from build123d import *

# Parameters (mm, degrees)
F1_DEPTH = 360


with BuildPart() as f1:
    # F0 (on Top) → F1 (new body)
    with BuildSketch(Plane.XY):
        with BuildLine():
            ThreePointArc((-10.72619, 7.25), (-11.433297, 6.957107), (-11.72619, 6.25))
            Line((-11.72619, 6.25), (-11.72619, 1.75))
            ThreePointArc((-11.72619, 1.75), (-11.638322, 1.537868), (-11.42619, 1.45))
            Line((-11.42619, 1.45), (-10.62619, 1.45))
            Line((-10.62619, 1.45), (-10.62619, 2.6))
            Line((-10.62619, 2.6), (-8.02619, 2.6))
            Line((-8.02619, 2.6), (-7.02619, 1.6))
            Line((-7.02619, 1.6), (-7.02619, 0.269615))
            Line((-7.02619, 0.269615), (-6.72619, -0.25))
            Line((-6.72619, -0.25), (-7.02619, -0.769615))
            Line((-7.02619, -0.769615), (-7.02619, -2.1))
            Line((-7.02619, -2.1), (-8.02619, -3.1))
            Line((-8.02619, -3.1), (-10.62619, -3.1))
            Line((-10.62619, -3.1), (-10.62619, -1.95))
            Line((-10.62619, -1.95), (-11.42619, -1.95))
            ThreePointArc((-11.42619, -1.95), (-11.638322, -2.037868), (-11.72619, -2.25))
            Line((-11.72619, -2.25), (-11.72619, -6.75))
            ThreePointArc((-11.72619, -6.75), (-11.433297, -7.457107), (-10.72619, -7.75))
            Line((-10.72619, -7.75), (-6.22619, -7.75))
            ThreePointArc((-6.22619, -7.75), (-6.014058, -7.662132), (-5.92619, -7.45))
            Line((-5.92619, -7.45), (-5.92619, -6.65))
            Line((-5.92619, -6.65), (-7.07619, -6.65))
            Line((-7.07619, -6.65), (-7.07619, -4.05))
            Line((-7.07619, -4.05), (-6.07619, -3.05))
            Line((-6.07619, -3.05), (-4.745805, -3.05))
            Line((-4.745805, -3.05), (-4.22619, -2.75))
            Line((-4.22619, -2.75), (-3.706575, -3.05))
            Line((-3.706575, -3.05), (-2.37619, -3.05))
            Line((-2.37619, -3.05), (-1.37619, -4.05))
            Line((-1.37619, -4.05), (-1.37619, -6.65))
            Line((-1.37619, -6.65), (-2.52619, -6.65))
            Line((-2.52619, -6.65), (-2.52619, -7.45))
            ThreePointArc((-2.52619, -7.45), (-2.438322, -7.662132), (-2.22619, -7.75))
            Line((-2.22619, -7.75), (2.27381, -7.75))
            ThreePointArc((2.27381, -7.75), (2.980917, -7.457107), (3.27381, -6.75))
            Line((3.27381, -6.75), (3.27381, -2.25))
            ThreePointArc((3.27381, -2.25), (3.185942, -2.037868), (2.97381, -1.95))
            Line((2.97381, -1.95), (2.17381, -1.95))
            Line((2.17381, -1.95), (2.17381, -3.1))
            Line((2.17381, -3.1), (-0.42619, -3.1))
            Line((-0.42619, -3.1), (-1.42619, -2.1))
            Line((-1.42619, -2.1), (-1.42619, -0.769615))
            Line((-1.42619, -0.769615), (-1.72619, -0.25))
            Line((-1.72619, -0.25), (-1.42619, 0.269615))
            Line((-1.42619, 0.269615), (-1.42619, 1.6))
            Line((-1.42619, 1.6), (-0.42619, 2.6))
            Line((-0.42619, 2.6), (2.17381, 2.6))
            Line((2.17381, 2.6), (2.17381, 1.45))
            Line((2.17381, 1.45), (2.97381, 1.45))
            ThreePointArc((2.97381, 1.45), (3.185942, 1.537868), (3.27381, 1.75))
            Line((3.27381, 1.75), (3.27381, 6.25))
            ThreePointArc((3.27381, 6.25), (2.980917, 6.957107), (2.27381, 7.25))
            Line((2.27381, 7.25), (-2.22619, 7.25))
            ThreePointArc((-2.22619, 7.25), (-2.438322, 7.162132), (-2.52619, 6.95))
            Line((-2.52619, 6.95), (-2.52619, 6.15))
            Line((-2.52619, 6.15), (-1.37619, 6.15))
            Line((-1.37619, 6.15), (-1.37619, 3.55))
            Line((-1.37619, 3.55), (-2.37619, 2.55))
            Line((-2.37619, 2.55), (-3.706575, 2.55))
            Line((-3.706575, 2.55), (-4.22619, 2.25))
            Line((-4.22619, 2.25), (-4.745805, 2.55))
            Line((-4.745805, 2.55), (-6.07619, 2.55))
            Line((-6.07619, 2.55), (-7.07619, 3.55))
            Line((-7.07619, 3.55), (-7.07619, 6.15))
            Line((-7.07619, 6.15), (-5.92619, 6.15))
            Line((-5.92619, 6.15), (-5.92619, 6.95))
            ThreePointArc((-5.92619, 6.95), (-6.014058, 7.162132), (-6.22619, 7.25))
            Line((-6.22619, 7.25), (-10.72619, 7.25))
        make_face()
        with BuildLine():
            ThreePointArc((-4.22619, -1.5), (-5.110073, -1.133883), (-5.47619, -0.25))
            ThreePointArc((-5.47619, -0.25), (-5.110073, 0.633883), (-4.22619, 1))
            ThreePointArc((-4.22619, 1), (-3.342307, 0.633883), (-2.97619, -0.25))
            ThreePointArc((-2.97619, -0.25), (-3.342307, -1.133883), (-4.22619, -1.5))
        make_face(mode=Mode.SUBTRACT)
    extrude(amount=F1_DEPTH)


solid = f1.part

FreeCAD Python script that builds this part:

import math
import FreeCAD as App
import Part
import Sketcher
Q = App.Units.Quantity

doc = App.newDocument("Part")
body = doc.addObject("PartDesign::Body", "Body")

# Sketch on XY plane
sketch1 = body.newObject("Sketcher::SketchObject", "Sketch")
sketch1.AttachmentSupport = (doc.getObject("XY_Plane"), [""])
sketch1.MapMode = "FlatFace"
sketch1.addGeometry([
    Part.ArcOfCircle(Part.Circle(App.Vector(-10.73, 6.25, 0), App.Vector(0, 0, 1), 1), math.radians(90), math.radians(180)),  # 0
    Part.LineSegment(App.Vector(-11.73, 6.25, 0), App.Vector(-11.73, 1.75, 0)),  # 1
    Part.ArcOfCircle(Part.Circle(App.Vector(-11.43, 1.75, 0), App.Vector(0, 0, 1), 0.3), math.radians(-180), math.radians(-90)),  # 2
    Part.LineSegment(App.Vector(-11.43, 1.45, 0), App.Vector(-10.63, 1.45, 0)),  # 3
    Part.LineSegment(App.Vector(-10.63, 1.45, 0), App.Vector(-10.63, 2.6, 0)),  # 4
    Part.LineSegment(App.Vector(-10.63, 2.6, 0), App.Vector(-8.03, 2.6, 0)),  # 5
    Part.LineSegment(App.Vector(-8.03, 2.6, 0), App.Vector(-7.03, 1.6, 0)),  # 6
    Part.LineSegment(App.Vector(-7.03, 1.6, 0), App.Vector(-7.03, 0.27, 0)),  # 7
    Part.LineSegment(App.Vector(-7.03, 0.27, 0), App.Vector(-6.73, -0.25, 0)),  # 8
    Part.LineSegment(App.Vector(-6.73, -0.25, 0), App.Vector(-7.03, -0.77, 0)),  # 9
    Part.LineSegment(App.Vector(-7.03, -0.77, 0), App.Vector(-7.03, -2.1, 0)),  # 10
    Part.LineSegment(App.Vector(-7.03, -2.1, 0), App.Vector(-8.03, -3.1, 0)),  # 11
    Part.LineSegment(App.Vector(-8.03, -3.1, 0), App.Vector(-10.63, -3.1, 0)),  # 12
    Part.LineSegment(App.Vector(-10.63, -3.1, 0), App.Vector(-10.63, -1.95, 0)),  # 13
    Part.LineSegment(App.Vector(-10.63, -1.95, 0), App.Vector(-11.43, -1.95, 0)),  # 14
    Part.ArcOfCircle(Part.Circle(App.Vector(-11.43, -2.25, 0), App.Vector(0, 0, 1), 0.3), math.radians(90), math.radians(180)),  # 15
    Part.LineSegment(App.Vector(-11.73, -2.25, 0), App.Vector(-11.73, -6.75, 0)),  # 16
    Part.ArcOfCircle(Part.Circle(App.Vector(-10.73, -6.75, 0), App.Vector(0, 0, 1), 1), math.radians(180), math.radians(270)),  # 17
    Part.LineSegment(App.Vector(-10.73, -7.75, 0), App.Vector(-6.23, -7.75, 0)),  # 18
    Part.ArcOfCircle(Part.Circle(App.Vector(-6.23, -7.45, 0), App.Vector(0, 0, 1), 0.3), math.radians(-90), math.radians(0)),  # 19
    Part.LineSegment(App.Vector(-5.93, -7.45, 0), App.Vector(-5.93, -6.65, 0)),  # 20
    Part.LineSegment(App.Vector(-5.93, -6.65, 0), App.Vector(-7.08, -6.65, 0)),  # 21
    Part.LineSegment(App.Vector(-7.08, -6.65, 0), App.Vector(-7.08, -4.05, 0)),  # 22
    Part.LineSegment(App.Vector(-7.08, -4.05, 0), App.Vector(-6.08, -3.05, 0)),  # 23
    Part.LineSegment(App.Vector(-6.08, -3.05, 0), App.Vector(-4.75, -3.05, 0)),  # 24
    Part.LineSegment(App.Vector(-4.75, -3.05, 0), App.Vector(-4.23, -2.75, 0)),  # 25
    Part.LineSegment(App.Vector(-4.23, -2.75, 0), App.Vector(-3.71, -3.05, 0)),  # 26
    Part.LineSegment(App.Vector(-3.71, -3.05, 0), App.Vector(-2.38, -3.05, 0)),  # 27
    Part.LineSegment(App.Vector(-2.38, -3.05, 0), App.Vector(-1.38, -4.05, 0)),  # 28
    Part.LineSegment(App.Vector(-1.38, -4.05, 0), App.Vector(-1.38, -6.65, 0)),  # 29
    Part.LineSegment(App.Vector(-1.38, -6.65, 0), App.Vector(-2.53, -6.65, 0)),  # 30
    Part.LineSegment(App.Vector(-2.53, -6.65, 0), App.Vector(-2.53, -7.45, 0)),  # 31
    Part.ArcOfCircle(Part.Circle(App.Vector(-2.23, -7.45, 0), App.Vector(0, 0, 1), 0.3), math.radians(-180), math.radians(-90)),  # 32
    Part.LineSegment(App.Vector(-2.23, -7.75, 0), App.Vector(2.27, -7.75, 0)),  # 33
    Part.ArcOfCircle(Part.Circle(App.Vector(2.27, -6.75, 0), App.Vector(0, 0, 1), 1), math.radians(-90), math.radians(0)),  # 34
    Part.LineSegment(App.Vector(3.27, -6.75, 0), App.Vector(3.27, -2.25, 0)),  # 35
    Part.ArcOfCircle(Part.Circle(App.Vector(2.97, -2.25, 0), App.Vector(0, 0, 1), 0.3), math.radians(0), math.radians(90)),  # 36
    Part.LineSegment(App.Vector(2.97, -1.95, 0), App.Vector(2.17, -1.95, 0)),  # 37
    Part.LineSegment(App.Vector(2.17, -1.95, 0), App.Vector(2.17, -3.1, 0)),  # 38
    Part.LineSegment(App.Vector(2.17, -3.1, 0), App.Vector(-0.43, -3.1, 0)),  # 39
    Part.LineSegment(App.Vector(-0.43, -3.1, 0), App.Vector(-1.43, -2.1, 0)),  # 40
    Part.LineSegment(App.Vector(-1.43, -2.1, 0), App.Vector(-1.43, -0.77, 0)),  # 41
    Part.LineSegment(App.Vector(-1.43, -0.77, 0), App.Vector(-1.73, -0.25, 0)),  # 42
    Part.LineSegment(App.Vector(-1.73, -0.25, 0), App.Vector(-1.43, 0.27, 0)),  # 43
    Part.LineSegment(App.Vector(-1.43, 0.27, 0), App.Vector(-1.43, 1.6, 0)),  # 44
    Part.LineSegment(App.Vector(-1.43, 1.6, 0), App.Vector(-0.43, 2.6, 0)),  # 45
    Part.LineSegment(App.Vector(-0.43, 2.6, 0), App.Vector(2.17, 2.6, 0)),  # 46
    Part.LineSegment(App.Vector(2.17, 2.6, 0), App.Vector(2.17, 1.45, 0)),  # 47
    Part.LineSegment(App.Vector(2.17, 1.45, 0), App.Vector(2.97, 1.45, 0)),  # 48
    Part.ArcOfCircle(Part.Circle(App.Vector(2.97, 1.75, 0), App.Vector(0, 0, 1), 0.3), math.radians(-90), math.radians(0)),  # 49
    Part.LineSegment(App.Vector(3.27, 1.75, 0), App.Vector(3.27, 6.25, 0)),  # 50
    Part.ArcOfCircle(Part.Circle(App.Vector(2.27, 6.25, 0), App.Vector(0, 0, 1), 1), math.radians(0), math.radians(90)),  # 51
    Part.LineSegment(App.Vector(2.27, 7.25, 0), App.Vector(-2.23, 7.25, 0)),  # 52
    Part.ArcOfCircle(Part.Circle(App.Vector(-2.23, 6.95, 0), App.Vector(0, 0, 1), 0.3), math.radians(90), math.radians(180)),  # 53
    Part.LineSegment(App.Vector(-2.53, 6.95, 0), App.Vector(-2.53, 6.15, 0)),  # 54
    Part.LineSegment(App.Vector(-2.53, 6.15, 0), App.Vector(-1.38, 6.15, 0)),  # 55
    Part.LineSegment(App.Vector(-1.38, 6.15, 0), App.Vector(-1.38, 3.55, 0)),  # 56
    Part.LineSegment(App.Vector(-1.38, 3.55, 0), App.Vector(-2.38, 2.55, 0)),  # 57
    Part.LineSegment(App.Vector(-2.38, 2.55, 0), App.Vector(-3.71, 2.55, 0)),  # 58
    Part.LineSegment(App.Vector(-3.71, 2.55, 0), App.Vector(-4.23, 2.25, 0)),  # 59
    Part.LineSegment(App.Vector(-4.23, 2.25, 0), App.Vector(-4.75, 2.55, 0)),  # 60
    Part.LineSegment(App.Vector(-4.75, 2.55, 0), App.Vector(-6.08, 2.55, 0)),  # 61
    Part.LineSegment(App.Vector(-6.08, 2.55, 0), App.Vector(-7.08, 3.55, 0)),  # 62
    Part.LineSegment(App.Vector(-7.08, 3.55, 0), App.Vector(-7.08, 6.15, 0)),  # 63
    Part.LineSegment(App.Vector(-7.08, 6.15, 0), App.Vector(-5.93, 6.15, 0)),  # 64
    Part.LineSegment(App.Vector(-5.93, 6.15, 0), App.Vector(-5.93, 6.95, 0)),  # 65
    Part.ArcOfCircle(Part.Circle(App.Vector(-6.23, 6.95, 0), App.Vector(0, 0, 1), 0.3), math.radians(0), math.radians(90)),  # 66
    Part.LineSegment(App.Vector(-6.23, 7.25, 0), App.Vector(-10.73, 7.25, 0)),  # 67
    Part.ArcOfCircle(Part.Circle(App.Vector(-4.23, -0.25, 0), App.Vector(0, 0, 1), 1.25), math.radians(-90), math.radians(0)),  # 68
    Part.ArcOfCircle(Part.Circle(App.Vector(-4.23, -0.25, 0), App.Vector(0, 0, 1), 1.25), math.radians(-180), math.radians(-90)),  # 69
    Part.ArcOfCircle(Part.Circle(App.Vector(-4.23, -0.25, 0), App.Vector(0, 0, 1), 1.25), math.radians(90), math.radians(180)),  # 70
    Part.ArcOfCircle(Part.Circle(App.Vector(-4.23, -0.25, 0), App.Vector(0, 0, 1), 1.25), math.radians(0), math.radians(90)),  # 71
], False)
sketch1.addConstraint([
    Sketcher.Constraint("Tangent", 0, 2, 1, 1),
    Sketcher.Constraint("Tangent", 1, 2, 2, 1),
    Sketcher.Constraint("Tangent", 2, 2, 3, 1),
    Sketcher.Constraint("Coincident", 3, 2, 4, 1),
    Sketcher.Constraint("Coincident", 4, 2, 5, 1),
    Sketcher.Constraint("Coincident", 5, 2, 6, 1),
    Sketcher.Constraint("Coincident", 6, 2, 7, 1),
    Sketcher.Constraint("Coincident", 7, 2, 8, 1),
    Sketcher.Constraint("Coincident", 8, 2, 9, 1),
    Sketcher.Constraint("Coincident", 9, 2, 10, 1),
    Sketcher.Constraint("Coincident", 10, 2, 11, 1),
    Sketcher.Constraint("Coincident", 11, 2, 12, 1),
    Sketcher.Constraint("Coincident", 12, 2, 13, 1),
    Sketcher.Constraint("Coincident", 13, 2, 14, 1),
    Sketcher.Constraint("Tangent", 14, 2, 15, 1),
    Sketcher.Constraint("Tangent", 15, 2, 16, 1),
    Sketcher.Constraint("Tangent", 16, 2, 17, 1),
    Sketcher.Constraint("Tangent", 17, 2, 18, 1),
    Sketcher.Constraint("Tangent", 18, 2, 19, 1),
    Sketcher.Constraint("Tangent", 19, 2, 20, 1),
    Sketcher.Constraint("Coincident", 20, 2, 21, 1),
    Sketcher.Constraint("Coincident", 21, 2, 22, 1),
    Sketcher.Constraint("Coincident", 22, 2, 23, 1),
    Sketcher.Constraint("Coincident", 23, 2, 24, 1),
    Sketcher.Constraint("Coincident", 24, 2, 25, 1),
    Sketcher.Constraint("Coincident", 25, 2, 26, 1),
    Sketcher.Constraint("Coincident", 26, 2, 27, 1),
    Sketcher.Constraint("Coincident", 27, 2, 28, 1),
    Sketcher.Constraint("Coincident", 28, 2, 29, 1),
    Sketcher.Constraint("Coincident", 29, 2, 30, 1),
    Sketcher.Constraint("Coincident", 30, 2, 31, 1),
    Sketcher.Constraint("Tangent", 31, 2, 32, 1),
    Sketcher.Constraint("Tangent", 32, 2, 33, 1),
    Sketcher.Constraint("Tangent", 33, 2, 34, 1),
    Sketcher.Constraint("Tangent", 34, 2, 35, 1),
    Sketcher.Constraint("Tangent", 35, 2, 36, 1),
    Sketcher.Constraint("Tangent", 36, 2, 37, 1),
    Sketcher.Constraint("Coincident", 37, 2, 38, 1),
    Sketcher.Constraint("Coincident", 38, 2, 39, 1),
    Sketcher.Constraint("Coincident", 39, 2, 40, 1),
    Sketcher.Constraint("Coincident", 40, 2, 41, 1),
    Sketcher.Constraint("Coincident", 41, 2, 42, 1),
    Sketcher.Constraint("Coincident", 42, 2, 43, 1),
    Sketcher.Constraint("Coincident", 43, 2, 44, 1),
    Sketcher.Constraint("Coincident", 44, 2, 45, 1),
    Sketcher.Constraint("Coincident", 45, 2, 46, 1),
    Sketcher.Constraint("Coincident", 46, 2, 47, 1),
    Sketcher.Constraint("Coincident", 47, 2, 48, 1),
    Sketcher.Constraint("Tangent", 48, 2, 49, 1),
    Sketcher.Constraint("Tangent", 49, 2, 50, 1),
    Sketcher.Constraint("Tangent", 50, 2, 51, 1),
    Sketcher.Constraint("Tangent", 51, 2, 52, 1),
    Sketcher.Constraint("Tangent", 52, 2, 53, 1),
    Sketcher.Constraint("Tangent", 53, 2, 54, 1),
    Sketcher.Constraint("Coincident", 54, 2, 55, 1),
    Sketcher.Constraint("Coincident", 55, 2, 56, 1),
    Sketcher.Constraint("Coincident", 56, 2, 57, 1),
    Sketcher.Constraint("Coincident", 57, 2, 58, 1),
    Sketcher.Constraint("Coincident", 58, 2, 59, 1),
    Sketcher.Constraint("Coincident", 59, 2, 60, 1),
    Sketcher.Constraint("Coincident", 60, 2, 61, 1),
    Sketcher.Constraint("Coincident", 61, 2, 62, 1),
    Sketcher.Constraint("Coincident", 62, 2, 63, 1),
    Sketcher.Constraint("Coincident", 63, 2, 64, 1),
    Sketcher.Constraint("Coincident", 64, 2, 65, 1),
    Sketcher.Constraint("Tangent", 65, 2, 66, 1),
    Sketcher.Constraint("Tangent", 66, 2, 67, 1),
    Sketcher.Constraint("Tangent", 67, 2, 0, 1),
    Sketcher.Constraint("Coincident", 68, 1, 69, 2),
    Sketcher.Constraint("Coincident", 69, 1, 70, 2),
    Sketcher.Constraint("Coincident", 70, 1, 71, 2),
    Sketcher.Constraint("Coincident", 71, 1, 68, 2),
    Sketcher.Constraint("Vertical", 1),
    Sketcher.Constraint("Horizontal", 3),
    Sketcher.Constraint("Vertical", 4),
    Sketcher.Constraint("Horizontal", 5),
    Sketcher.Constraint("Vertical", 7),
    Sketcher.Constraint("Vertical", 10),
    Sketcher.Constraint("Horizontal", 12),
    Sketcher.Constraint("Vertical", 13),
    Sketcher.Constraint("Horizontal", 14),
    Sketcher.Constraint("Vertical", 16),
    Sketcher.Constraint("Horizontal", 18),
    Sketcher.Constraint("Vertical", 20),
    Sketcher.Constraint("Horizontal", 21),
    Sketcher.Constraint("Vertical", 22),
    Sketcher.Constraint("Horizontal", 24),
    Sketcher.Constraint("Horizontal", 27),
    Sketcher.Constraint("Vertical", 29),
    Sketcher.Constraint("Horizontal", 30),
    Sketcher.Constraint("Vertical", 31),
    Sketcher.Constraint("Horizontal", 33),
    Sketcher.Constraint("Vertical", 35),
    Sketcher.Constraint("Horizontal", 37),
    Sketcher.Constraint("Vertical", 38),
    Sketcher.Constraint("Horizontal", 39),
    Sketcher.Constraint("Vertical", 41),
    Sketcher.Constraint("Vertical", 44),
    Sketcher.Constraint("Horizontal", 46),
    Sketcher.Constraint("Vertical", 47),
    Sketcher.Constraint("Horizontal", 48),
    Sketcher.Constraint("Vertical", 50),
    Sketcher.Constraint("Horizontal", 52),
    Sketcher.Constraint("Vertical", 54),
    Sketcher.Constraint("Horizontal", 55),
    Sketcher.Constraint("Vertical", 56),
    Sketcher.Constraint("Horizontal", 58),
    Sketcher.Constraint("Horizontal", 61),
    Sketcher.Constraint("Vertical", 63),
    Sketcher.Constraint("Horizontal", 64),
    Sketcher.Constraint("Vertical", 65),
    Sketcher.Constraint("Horizontal", 67),
    Sketcher.Constraint("Coincident", 69, 3, 68, 3),
    Sketcher.Constraint("Coincident", 70, 3, 68, 3),
    Sketcher.Constraint("Equal", 2, 15),
    Sketcher.Constraint("Equal", 0, 17),
    Sketcher.Constraint("Equal", 15, 19),
    Sketcher.Constraint("Equal", 19, 32),
    Sketcher.Constraint("Equal", 17, 34),
    Sketcher.Constraint("Equal", 32, 36),
    Sketcher.Constraint("Equal", 36, 49),
    Sketcher.Constraint("Equal", 34, 51),
    Sketcher.Constraint("Equal", 49, 53),
    Sketcher.Constraint("Equal", 53, 66),
    Sketcher.Constraint("Equal", 70, 71),
    Sketcher.Constraint("Perpendicular", 6, 11),
    Sketcher.Constraint("Parallel", 11, 23),
    Sketcher.Constraint("Perpendicular", 8, 25),
    Sketcher.Constraint("Perpendicular", 9, 26),
    Sketcher.Constraint("Perpendicular", 23, 28),
    Sketcher.Constraint("Parallel", 28, 40),
    Sketcher.Constraint("Perpendicular", 25, 42),
    Sketcher.Constraint("Perpendicular", 26, 43),
    Sketcher.Constraint("Perpendicular", 40, 45),
    Sketcher.Constraint("Parallel", 45, 57),
    Sketcher.Constraint("Perpendicular", 42, 59),
    Sketcher.Constraint("Perpendicular", 43, 60),
    Sketcher.Constraint("Perpendicular", 57, 62),
    Sketcher.Constraint("Horizontal", 19, 3, 32, 3),
    Sketcher.Constraint("Horizontal", 15, 3, 36, 3),
    Sketcher.Constraint("Horizontal", 2, 3, 49, 3),
    Sketcher.Constraint("Horizontal", 0, 3, 51, 3),
    Sketcher.Constraint("Horizontal", 71, 3, 8, 2),
    Sketcher.Constraint("Horizontal", 24, 2, 26, 2),
    Sketcher.Constraint("Horizontal", 22, 2, 28, 2),
    Sketcher.Constraint("Horizontal", 21, 2, 29, 2),
    Sketcher.Constraint("Horizontal", 12, 2, 38, 2),
    Sketcher.Constraint("Horizontal", 10, 2, 40, 2),
    Sketcher.Constraint("Horizontal", 9, 2, 41, 2),
    Sketcher.Constraint("Horizontal", 8, 2, 42, 2),
    Sketcher.Constraint("Horizontal", 7, 2, 43, 2),
    Sketcher.Constraint("Horizontal", 6, 2, 44, 2),
    Sketcher.Constraint("Horizontal", 5, 2, 45, 2),
    Sketcher.Constraint("Horizontal", 58, 2, 60, 2),
    Sketcher.Constraint("Horizontal", 56, 2, 62, 2),
    Sketcher.Constraint("Horizontal", 55, 2, 63, 2),
    Sketcher.Constraint("Horizontal", 42, 2, 69, 1),
    Sketcher.Constraint("Horizontal", 69, 1, 71, 1),
    Sketcher.Constraint("Vertical", 2, 3, 15, 3),
    Sketcher.Constraint("Vertical", 36, 3, 49, 3),
    Sketcher.Constraint("Vertical", 32, 3, 53, 3),
    Sketcher.Constraint("Vertical", 19, 3, 66, 3),
    Sketcher.Constraint("Vertical", 7, 2, 9, 2),
    Sketcher.Constraint("Vertical", 5, 2, 11, 2),
    Sketcher.Constraint("Vertical", 4, 2, 12, 2),
    Sketcher.Constraint("Vertical", 71, 3, 25, 2),
    Sketcher.Constraint("Vertical", 41, 2, 43, 2),
    Sketcher.Constraint("Vertical", 39, 2, 45, 2),
    Sketcher.Constraint("Vertical", 38, 2, 46, 2),
    Sketcher.Constraint("Vertical", 29, 2, 55, 2),
    Sketcher.Constraint("Vertical", 27, 2, 57, 2),
    Sketcher.Constraint("Vertical", 26, 2, 58, 2),
    Sketcher.Constraint("Vertical", 25, 2, 59, 2),
    Sketcher.Constraint("Vertical", 23, 2, 61, 2),
    Sketcher.Constraint("Vertical", 59, 2, 68, 1),
    Sketcher.Constraint("Vertical", 68, 1, 70, 1),
    Sketcher.Constraint("Equal", 24, 27),
    Sketcher.Constraint("Equal", 21, 30),
    Sketcher.Constraint("Equal", 18, 33),
    Sketcher.Constraint("Equal", 14, 37),
    Sketcher.Constraint("Equal", 12, 39),
    Sketcher.Constraint("Equal", 67, 1),
    Sketcher.Constraint("Equal", 64, 4),
    Sketcher.Constraint("Equal", 61, 7),
    Sketcher.Constraint("Equal", 7, 10),
    Sketcher.Constraint("Equal", 4, 13),
    Sketcher.Constraint("Equal", 1, 16),
    Sketcher.Constraint("Equal", 48, 20),
    Sketcher.Constraint("Equal", 46, 22),
    Sketcher.Constraint("Equal", 31, 54),
    Sketcher.Constraint("Equal", 29, 56),
    Sketcher.Constraint("Equal", 11, 23),
    Sketcher.Constraint("Equal", 9, 25),
    Sketcher.Constraint("Radius", 0, 0.999999),
    Sketcher.Constraint("Radius", 2, 0.3),
    Sketcher.Constraint("Angle", 8, Q("-59.999988 deg")),
    Sketcher.Constraint("Radius", 68, 1.250002),
    Sketcher.Constraint("DistanceX", 3, 1, 3, 2, 0.8),
    Sketcher.Constraint("DistanceX", 5, 1, 5, 2, 2.6),
    Sketcher.Constraint("DistanceX", 18, 1, 18, 2, 4.5),
    Sketcher.Constraint("DistanceY", -1, 1, 70, 1, 1.0),
    Sketcher.Constraint("Distance", 8, 0.6),
    Sketcher.Constraint("DistanceX", 21, 2, 21, 1, 1.15),
    Sketcher.Constraint("DistanceY", -1, 1, 4, 2, 2.6),
    Sketcher.Constraint("DistanceY", -1, 1, 6, 2, 1.6),
    Sketcher.Constraint("DistanceX", 0, 3, -1, 1, 10.726191),
])
pad1 = body.newObject("PartDesign::Pad", "Pad")
pad1.Profile = sketch1
pad1.Length = 360

doc.recompute()
